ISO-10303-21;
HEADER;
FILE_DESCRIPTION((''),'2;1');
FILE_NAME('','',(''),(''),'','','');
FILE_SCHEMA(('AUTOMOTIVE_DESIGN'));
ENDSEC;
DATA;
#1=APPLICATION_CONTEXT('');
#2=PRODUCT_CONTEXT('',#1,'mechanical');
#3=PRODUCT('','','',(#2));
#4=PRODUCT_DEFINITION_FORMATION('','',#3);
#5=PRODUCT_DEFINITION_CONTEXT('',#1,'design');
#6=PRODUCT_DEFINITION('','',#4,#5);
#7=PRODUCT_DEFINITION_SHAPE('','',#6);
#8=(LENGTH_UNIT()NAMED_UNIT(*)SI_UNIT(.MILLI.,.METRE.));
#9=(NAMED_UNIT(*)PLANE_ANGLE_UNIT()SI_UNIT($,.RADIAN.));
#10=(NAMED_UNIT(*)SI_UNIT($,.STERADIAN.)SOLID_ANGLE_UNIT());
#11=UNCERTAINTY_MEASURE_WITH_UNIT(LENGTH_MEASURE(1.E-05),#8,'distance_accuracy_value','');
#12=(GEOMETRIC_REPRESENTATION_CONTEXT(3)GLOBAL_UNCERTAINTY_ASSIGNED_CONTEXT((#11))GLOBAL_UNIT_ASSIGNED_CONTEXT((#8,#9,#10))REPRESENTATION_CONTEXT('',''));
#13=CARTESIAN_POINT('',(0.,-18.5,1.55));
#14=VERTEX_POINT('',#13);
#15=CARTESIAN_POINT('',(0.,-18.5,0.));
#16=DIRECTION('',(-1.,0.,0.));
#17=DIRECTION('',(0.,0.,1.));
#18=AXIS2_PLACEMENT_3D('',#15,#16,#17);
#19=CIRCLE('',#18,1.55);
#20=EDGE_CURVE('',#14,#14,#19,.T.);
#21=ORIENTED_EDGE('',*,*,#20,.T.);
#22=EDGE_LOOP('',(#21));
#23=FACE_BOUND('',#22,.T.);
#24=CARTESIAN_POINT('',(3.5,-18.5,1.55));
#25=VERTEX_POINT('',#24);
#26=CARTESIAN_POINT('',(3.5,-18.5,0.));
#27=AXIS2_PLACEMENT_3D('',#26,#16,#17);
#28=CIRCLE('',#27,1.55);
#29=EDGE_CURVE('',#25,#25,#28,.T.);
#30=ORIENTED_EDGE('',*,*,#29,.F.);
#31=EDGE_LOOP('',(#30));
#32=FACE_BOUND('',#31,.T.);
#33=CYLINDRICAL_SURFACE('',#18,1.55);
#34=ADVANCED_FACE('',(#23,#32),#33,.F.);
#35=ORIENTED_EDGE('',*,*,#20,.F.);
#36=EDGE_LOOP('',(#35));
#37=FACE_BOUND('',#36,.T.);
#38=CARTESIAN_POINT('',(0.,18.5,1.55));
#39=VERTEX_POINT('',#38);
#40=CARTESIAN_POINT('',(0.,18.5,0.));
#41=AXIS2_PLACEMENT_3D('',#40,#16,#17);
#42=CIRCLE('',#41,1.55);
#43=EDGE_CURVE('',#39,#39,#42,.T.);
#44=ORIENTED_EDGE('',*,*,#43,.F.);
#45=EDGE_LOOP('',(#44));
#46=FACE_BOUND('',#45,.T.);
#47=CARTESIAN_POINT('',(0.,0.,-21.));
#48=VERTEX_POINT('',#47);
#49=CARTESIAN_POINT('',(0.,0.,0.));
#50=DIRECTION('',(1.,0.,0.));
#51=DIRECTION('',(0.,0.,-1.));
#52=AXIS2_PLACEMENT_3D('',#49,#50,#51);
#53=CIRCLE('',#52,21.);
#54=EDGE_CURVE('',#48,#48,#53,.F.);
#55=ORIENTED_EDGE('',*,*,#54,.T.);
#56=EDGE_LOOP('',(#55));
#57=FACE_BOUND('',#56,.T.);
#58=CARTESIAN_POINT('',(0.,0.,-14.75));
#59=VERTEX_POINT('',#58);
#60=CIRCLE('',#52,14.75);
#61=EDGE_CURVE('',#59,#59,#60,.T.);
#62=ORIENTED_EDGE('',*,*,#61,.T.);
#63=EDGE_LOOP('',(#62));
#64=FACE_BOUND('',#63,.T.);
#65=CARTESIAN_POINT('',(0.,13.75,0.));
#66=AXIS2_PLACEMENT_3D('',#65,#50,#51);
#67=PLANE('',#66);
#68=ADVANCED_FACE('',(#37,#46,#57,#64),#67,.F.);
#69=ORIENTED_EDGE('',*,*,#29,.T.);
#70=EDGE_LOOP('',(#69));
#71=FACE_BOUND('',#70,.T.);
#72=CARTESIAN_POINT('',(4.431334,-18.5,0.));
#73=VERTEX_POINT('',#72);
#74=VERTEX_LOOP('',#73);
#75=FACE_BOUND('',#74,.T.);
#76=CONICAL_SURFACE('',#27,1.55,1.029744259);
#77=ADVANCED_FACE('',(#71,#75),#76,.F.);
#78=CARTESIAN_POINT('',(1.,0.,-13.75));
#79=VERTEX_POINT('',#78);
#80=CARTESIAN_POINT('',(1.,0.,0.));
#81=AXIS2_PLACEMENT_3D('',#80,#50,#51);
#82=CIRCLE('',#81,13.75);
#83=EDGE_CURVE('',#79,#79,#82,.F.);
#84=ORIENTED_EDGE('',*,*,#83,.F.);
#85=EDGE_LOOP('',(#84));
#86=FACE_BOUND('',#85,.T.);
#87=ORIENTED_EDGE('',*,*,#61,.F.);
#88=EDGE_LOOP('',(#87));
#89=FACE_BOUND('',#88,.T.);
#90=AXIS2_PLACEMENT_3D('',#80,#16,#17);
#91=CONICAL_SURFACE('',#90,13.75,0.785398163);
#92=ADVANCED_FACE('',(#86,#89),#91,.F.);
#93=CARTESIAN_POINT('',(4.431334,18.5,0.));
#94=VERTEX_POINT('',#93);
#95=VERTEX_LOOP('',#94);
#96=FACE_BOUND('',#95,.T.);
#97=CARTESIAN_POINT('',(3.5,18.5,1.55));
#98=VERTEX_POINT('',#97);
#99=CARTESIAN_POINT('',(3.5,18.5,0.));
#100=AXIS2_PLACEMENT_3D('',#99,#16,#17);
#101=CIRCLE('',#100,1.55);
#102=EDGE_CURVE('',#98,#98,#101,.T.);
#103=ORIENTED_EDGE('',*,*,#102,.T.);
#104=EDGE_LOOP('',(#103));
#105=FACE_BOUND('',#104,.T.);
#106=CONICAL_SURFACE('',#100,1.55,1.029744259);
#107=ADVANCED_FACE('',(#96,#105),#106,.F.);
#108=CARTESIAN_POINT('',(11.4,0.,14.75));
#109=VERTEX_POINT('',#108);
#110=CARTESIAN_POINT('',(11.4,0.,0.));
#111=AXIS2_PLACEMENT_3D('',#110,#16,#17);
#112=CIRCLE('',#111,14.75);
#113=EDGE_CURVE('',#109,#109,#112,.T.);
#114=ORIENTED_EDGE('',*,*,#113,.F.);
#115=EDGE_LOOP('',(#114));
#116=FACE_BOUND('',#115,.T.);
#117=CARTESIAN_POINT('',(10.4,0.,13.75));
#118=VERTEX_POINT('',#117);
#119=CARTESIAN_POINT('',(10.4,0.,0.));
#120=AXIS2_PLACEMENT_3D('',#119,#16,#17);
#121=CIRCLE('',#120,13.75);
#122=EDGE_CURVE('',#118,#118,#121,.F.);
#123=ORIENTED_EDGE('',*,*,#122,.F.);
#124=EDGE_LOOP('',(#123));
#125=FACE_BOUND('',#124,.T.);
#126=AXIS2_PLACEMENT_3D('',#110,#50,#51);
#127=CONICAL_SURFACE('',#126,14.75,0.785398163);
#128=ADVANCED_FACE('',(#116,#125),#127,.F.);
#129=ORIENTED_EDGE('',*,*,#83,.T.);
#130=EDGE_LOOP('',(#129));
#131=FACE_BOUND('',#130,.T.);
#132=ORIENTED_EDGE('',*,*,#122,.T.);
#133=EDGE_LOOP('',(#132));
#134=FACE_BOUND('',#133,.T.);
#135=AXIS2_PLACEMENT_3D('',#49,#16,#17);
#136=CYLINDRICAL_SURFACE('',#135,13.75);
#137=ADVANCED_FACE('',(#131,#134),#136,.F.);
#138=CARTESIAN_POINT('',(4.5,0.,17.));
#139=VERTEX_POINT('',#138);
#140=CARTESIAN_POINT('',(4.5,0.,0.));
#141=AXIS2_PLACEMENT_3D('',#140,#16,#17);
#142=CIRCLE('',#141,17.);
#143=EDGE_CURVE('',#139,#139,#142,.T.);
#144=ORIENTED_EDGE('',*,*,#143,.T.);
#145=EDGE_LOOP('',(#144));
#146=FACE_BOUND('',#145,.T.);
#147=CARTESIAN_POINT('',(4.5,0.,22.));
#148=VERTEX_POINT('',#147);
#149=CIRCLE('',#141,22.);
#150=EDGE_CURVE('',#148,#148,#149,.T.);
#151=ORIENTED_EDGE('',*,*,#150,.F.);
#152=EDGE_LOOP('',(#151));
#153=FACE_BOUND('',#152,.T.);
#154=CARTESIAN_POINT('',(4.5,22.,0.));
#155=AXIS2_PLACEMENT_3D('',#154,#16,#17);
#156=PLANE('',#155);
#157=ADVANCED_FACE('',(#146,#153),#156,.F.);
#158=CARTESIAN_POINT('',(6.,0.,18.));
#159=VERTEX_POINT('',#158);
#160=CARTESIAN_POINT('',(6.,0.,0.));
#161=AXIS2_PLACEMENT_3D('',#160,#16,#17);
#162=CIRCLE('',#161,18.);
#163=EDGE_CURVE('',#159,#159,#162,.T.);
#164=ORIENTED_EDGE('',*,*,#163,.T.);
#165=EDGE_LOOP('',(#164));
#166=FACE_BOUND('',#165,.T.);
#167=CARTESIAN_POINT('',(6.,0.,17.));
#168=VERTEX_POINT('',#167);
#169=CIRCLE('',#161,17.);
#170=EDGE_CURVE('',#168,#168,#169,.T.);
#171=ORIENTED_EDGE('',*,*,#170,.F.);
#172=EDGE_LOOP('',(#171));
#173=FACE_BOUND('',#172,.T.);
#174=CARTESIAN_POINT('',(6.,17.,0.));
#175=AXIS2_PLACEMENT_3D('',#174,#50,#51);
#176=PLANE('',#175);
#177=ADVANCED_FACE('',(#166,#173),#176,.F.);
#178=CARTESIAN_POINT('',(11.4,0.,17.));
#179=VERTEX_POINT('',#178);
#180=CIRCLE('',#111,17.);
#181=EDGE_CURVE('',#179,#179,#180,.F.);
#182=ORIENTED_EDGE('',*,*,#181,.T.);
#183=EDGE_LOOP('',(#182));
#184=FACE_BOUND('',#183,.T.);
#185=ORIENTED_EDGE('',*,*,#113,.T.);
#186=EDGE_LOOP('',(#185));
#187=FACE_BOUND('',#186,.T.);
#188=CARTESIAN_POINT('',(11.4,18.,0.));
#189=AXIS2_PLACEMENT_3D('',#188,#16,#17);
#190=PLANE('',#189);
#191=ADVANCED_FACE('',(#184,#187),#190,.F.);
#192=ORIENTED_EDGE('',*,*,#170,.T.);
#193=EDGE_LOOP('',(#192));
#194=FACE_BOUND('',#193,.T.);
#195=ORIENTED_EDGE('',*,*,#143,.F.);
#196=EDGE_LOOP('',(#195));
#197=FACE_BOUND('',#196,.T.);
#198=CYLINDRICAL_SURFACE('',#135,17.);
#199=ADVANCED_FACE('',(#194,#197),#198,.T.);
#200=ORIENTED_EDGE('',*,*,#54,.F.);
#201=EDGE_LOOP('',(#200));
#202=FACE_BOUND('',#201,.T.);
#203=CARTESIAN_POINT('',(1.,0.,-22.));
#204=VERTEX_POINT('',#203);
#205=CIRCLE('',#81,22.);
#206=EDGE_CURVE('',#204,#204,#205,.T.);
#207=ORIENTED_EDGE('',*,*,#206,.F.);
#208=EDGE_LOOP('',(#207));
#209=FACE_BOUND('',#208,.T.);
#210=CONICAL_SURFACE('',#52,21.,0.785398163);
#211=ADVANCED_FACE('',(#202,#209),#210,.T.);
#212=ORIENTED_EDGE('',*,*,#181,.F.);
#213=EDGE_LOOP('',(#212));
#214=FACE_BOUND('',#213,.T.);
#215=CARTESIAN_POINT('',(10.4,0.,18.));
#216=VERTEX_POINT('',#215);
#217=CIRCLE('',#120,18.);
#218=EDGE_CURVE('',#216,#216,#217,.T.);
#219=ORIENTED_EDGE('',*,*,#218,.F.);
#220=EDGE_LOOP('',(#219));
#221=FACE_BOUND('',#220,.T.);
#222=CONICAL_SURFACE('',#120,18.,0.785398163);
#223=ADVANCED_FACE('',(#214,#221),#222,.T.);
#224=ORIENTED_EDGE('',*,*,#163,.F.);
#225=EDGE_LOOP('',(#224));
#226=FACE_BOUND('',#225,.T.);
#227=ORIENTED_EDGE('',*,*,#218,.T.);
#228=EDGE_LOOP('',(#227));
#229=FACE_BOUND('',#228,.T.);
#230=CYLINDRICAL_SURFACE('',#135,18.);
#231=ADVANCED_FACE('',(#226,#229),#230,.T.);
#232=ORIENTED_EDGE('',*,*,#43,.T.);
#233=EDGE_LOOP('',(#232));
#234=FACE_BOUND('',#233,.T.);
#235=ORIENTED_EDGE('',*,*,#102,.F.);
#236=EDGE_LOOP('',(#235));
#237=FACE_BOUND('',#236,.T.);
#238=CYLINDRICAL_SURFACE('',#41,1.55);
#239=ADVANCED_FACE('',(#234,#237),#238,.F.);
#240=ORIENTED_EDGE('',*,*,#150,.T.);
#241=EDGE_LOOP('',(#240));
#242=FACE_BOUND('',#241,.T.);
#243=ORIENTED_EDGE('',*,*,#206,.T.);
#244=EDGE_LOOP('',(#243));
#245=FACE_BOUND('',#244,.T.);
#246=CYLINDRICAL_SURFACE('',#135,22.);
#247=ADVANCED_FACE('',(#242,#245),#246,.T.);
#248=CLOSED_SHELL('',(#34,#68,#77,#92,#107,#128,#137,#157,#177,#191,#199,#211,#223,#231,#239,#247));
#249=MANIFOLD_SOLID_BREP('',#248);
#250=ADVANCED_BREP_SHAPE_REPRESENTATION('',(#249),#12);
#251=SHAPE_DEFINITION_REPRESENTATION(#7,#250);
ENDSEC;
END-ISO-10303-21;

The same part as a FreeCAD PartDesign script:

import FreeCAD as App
import Part
import Sketcher

V = App.Vector
Q = App.Units.Quantity


def edges_at(feature, points):
    """Names of the edges that pass closest to the given points."""
    edges = feature.Shape.Edges
    near = lambda p: min(range(len(edges)), key=lambda i: edges[i].distToShape(Part.Vertex(*p))[0])
    return sorted({f"Edge{near(p) + 1}" for p in points})


def add_polygon(sketch, points):
    """Adds a closed chain of lines whose ends are joined by coincident constraints."""
    first, n = sketch.GeometryCount, len(points)
    for a, b in zip(points, points[1:] + points[:1]):
        sketch.addGeometry(Part.LineSegment(App.Vector(*a, 0), App.Vector(*b, 0)), False)
    for i in range(n):
        sketch.addConstraint(Sketcher.Constraint("Coincident", first + i, 2, first + (i + 1) % n, 1))

doc = App.newDocument("Part")
body = doc.addObject("PartDesign::Body", "Body")

# Sketch on XY plane
sketch1 = body.newObject("Sketcher::SketchObject", "Sketch")
sketch1.AttachmentSupport = (doc.getObject("XY_Plane"), [""])
sketch1.MapMode = "FlatFace"
add_polygon(sketch1, [(0, 22), (0, 13.75), (11.4, 13.75), (11.4, 18), (6, 18), (6, 17), (4.5, 17), (4.5, 22)])  # lines 0-7
sketch1.addConstraint(Sketcher.Constraint("Vertical", 0))
sketch1.addConstraint(Sketcher.Constraint("Horizontal", 1))
sketch1.addConstraint(Sketcher.Constraint("Vertical", 2))
sketch1.addConstraint(Sketcher.Constraint("Horizontal", 3))
sketch1.addConstraint(Sketcher.Constraint("Vertical", 4))
sketch1.addConstraint(Sketcher.Constraint("Horizontal", 5))
sketch1.addConstraint(Sketcher.Constraint("Vertical", 6))
sketch1.addConstraint(Sketcher.Constraint("Horizontal", 7))
sketch1.addConstraint(Sketcher.Constraint("PointOnObject", 0, 2, -2))
sketch1.addConstraint(Sketcher.Constraint("DistanceY", 4, 2, 4, 1, 1.0))
sketch1.addConstraint(Sketcher.Constraint("DistanceY", 6, 1, 6, 2, 5.0))
sketch1.addConstraint(Sketcher.Constraint("DistanceX", 1, 1, 1, 2, 11.4))
sketch1.addConstraint(Sketcher.Constraint("DistanceX", 3, 2, 3, 1, 5.4))
sketch1.addConstraint(Sketcher.Constraint("DistanceX", 5, 2, 5, 1, 1.5))
sketch1.addConstraint(Sketcher.Constraint("DistanceY", -1, 1, 2, 2, 18.0))
sketch1.addConstraint(Sketcher.Constraint("DistanceY", 0, 2, 0, 1, 8.25))
revolution = body.newObject("PartDesign::Revolution", "Revolution")
revolution.Profile = sketch1
revolution.ReferenceAxis = (sketch1, ["H_Axis"])
revolution.Angle = 360
doc.recompute()

chamfer = body.newObject("PartDesign::Chamfer", "Chamfer")
chamfer.Base = (revolution, edges_at(revolution, [
    (11.4, 0, -13.75),
    (11.4, 0, -18),
    (0, 0, -22),
    (0, 0, -13.75),
]))
chamfer.Size = 1

# Sketch on XZ plane
sketch2 = body.newObject("Sketcher::SketchObject", "Sketch001")
sketch2.AttachmentSupport = (doc.getObject("XZ_Plane"), [""])
sketch2.MapMode = "FlatFace"
sketch2.AttachmentOffset = App.Placement(V(0, 0, -18.5), App.Rotation())
add_polygon(sketch2, [(4.431334, 0), (0, 0), (0, 1.55), (3.5, 1.55)])  # lines 0-3
sketch2.addConstraint(Sketcher.Constraint("Horizontal", 0))
sketch2.addConstraint(Sketcher.Constraint("Vertical", 1))
sketch2.addConstraint(Sketcher.Constraint("Horizontal", 2))
sketch2.addConstraint(Sketcher.Constraint("Coincident", 0, 2, -1, 1))
sketch2.addConstraint(Sketcher.Constraint("Angle", 3, Q("-59 deg")))
sketch2.addConstraint(Sketcher.Constraint("DistanceX", 2, 1, 2, 2, 3.5))
sketch2.addConstraint(Sketcher.Constraint("DistanceY", 1, 1, 1, 2, 1.55))
groove = body.newObject("PartDesign::Groove", "Groove")
groove.Profile = sketch2
groove.ReferenceAxis = (sketch2, ["H_Axis"])
groove.Angle = 360
doc.recompute()

mirrored = body.newObject("PartDesign::Mirrored", "Mirrored")
mirrored.Originals = [groove]
mirrored.MirrorPlane = (doc.getObject("XZ_Plane"), [""])
body.Tip = mirrored

doc.recompute()
